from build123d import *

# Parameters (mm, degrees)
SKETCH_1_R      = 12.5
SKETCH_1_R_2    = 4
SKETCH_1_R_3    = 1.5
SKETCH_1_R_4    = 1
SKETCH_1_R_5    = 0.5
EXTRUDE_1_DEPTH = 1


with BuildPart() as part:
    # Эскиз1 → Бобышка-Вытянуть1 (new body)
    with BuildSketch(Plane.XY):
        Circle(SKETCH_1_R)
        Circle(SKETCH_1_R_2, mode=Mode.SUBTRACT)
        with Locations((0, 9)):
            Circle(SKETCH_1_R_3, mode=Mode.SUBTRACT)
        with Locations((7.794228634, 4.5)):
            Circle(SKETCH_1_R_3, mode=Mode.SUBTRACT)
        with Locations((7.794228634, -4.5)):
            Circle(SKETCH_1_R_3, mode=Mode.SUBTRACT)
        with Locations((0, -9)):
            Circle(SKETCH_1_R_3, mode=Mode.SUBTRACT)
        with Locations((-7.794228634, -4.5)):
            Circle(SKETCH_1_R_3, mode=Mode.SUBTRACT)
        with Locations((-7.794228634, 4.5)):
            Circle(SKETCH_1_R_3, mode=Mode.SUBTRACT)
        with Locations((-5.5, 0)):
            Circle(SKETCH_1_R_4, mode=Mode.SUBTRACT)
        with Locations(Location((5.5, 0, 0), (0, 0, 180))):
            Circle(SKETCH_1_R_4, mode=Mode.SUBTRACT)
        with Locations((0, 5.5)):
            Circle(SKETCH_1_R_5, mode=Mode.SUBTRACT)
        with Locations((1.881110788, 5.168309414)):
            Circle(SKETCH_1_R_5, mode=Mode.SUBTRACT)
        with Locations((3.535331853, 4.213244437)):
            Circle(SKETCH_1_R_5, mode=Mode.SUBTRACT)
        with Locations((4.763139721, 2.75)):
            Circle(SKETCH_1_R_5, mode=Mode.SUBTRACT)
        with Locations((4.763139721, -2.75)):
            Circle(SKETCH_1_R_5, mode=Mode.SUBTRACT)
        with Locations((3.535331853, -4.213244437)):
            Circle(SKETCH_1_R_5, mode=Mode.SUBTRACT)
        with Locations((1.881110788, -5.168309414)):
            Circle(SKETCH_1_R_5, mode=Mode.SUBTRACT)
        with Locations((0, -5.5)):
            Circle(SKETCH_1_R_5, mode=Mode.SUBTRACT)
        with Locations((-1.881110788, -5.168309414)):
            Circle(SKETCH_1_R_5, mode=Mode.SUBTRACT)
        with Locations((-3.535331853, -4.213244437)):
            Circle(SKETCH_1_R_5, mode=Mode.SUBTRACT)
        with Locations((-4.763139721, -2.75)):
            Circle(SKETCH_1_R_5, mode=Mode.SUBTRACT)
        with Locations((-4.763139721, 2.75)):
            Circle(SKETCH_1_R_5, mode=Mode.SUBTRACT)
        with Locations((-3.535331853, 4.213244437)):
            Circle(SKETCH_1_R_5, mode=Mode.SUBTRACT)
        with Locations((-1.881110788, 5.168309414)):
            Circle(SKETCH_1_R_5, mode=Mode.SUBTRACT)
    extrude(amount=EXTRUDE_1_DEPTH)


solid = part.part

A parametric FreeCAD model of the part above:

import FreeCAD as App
import Part
import Sketcher

V = App.Vector

doc = App.newDocument("Part")
body = doc.addObject("PartDesign::Body", "Body")

sketch1 = body.newObject("Sketcher::SketchObject", "Sketch")
sketch1.AttachmentSupport = (doc.getObject("XY_Plane"), [""])
sketch1.MapMode = "FlatFace"
sketch1.addGeometry([
    Part.Circle(V(0, 0, 0), V(0, 0, 1), 12.5),
    Part.Circle(V(-7.8, -4.5, 0), V(0, 0, 1), 1.5),
    Part.Circle(V(-4.8, -2.8, 0), V(0, 0, 1), 0.5),
    Part.Circle(V(-3.5, -4.2, 0), V(0, 0, 1), 0.5),
    Part.Circle(V(-1.9, -5.2, 0), V(0, 0, 1), 0.5),
    Part.Circle(V(0, -9, 0), V(0, 0, 1), 1.5),
    Part.Circle(V(0, -5.5, 0), V(0, 0, 1), 0.5),
    Part.Circle(V(1.9, -5.2, 0), V(0, 0, 1), 0.5),
    Part.Circle(V(3.5, -4.2, 0), V(0, 0, 1), 0.5),
    Part.Circle(V(4.8, -2.8, 0), V(0, 0, 1), 0.5),
    Part.Circle(V(7.8, -4.5, 0), V(0, 0, 1), 1.5),
    Part.Circle(V(-5.5, 0, 0), V(0, 0, 1), 1),
    Part.Circle(V(-7.8, 4.5, 0), V(0, 0, 1), 1.5),
    Part.Circle(V(-4.8, 2.8, 0), V(0, 0, 1), 0.5),
    Part.Circle(V(-3.5, 4.2, 0), V(0, 0, 1), 0.5),
    Part.Circle(V(-1.9, 5.2, 0), V(0, 0, 1), 0.5),
    Part.Circle(V(0, 0, 0), V(0, 0, 1), 4),
    Part.Circle(V(1.9, 5.2, 0), V(0, 0, 1), 0.5),
    Part.Circle(V(3.5, 4.2, 0), V(0, 0, 1), 0.5),
    Part.Circle(V(5.5, 0, 0), V(0, 0, 1), 1),
    Part.Circle(V(4.8, 2.8, 0), V(0, 0, 1), 0.5),
    Part.Circle(V(7.8, 4.5, 0), V(0, 0, 1), 1.5),
    Part.Circle(V(0, 5.5, 0), V(0, 0, 1), 0.5),
    Part.Circle(V(0, 9, 0), V(0, 0, 1), 1.5),
], False)
sketch1.addConstraint([
    Sketcher.Constraint("Coincident", 0, 3, -1, 1),
    Sketcher.Constraint("Coincident", 16, 3, -1, 1),
    Sketcher.Constraint("Equal", 2, 3),
    Sketcher.Constraint("Equal", 3, 4),
    Sketcher.Constraint("Equal", 1, 5),
    Sketcher.Constraint("Equal", 4, 6),
    Sketcher.Constraint("Equal", 6, 7),
    Sketcher.Constraint("Equal", 7, 8),
    Sketcher.Constraint("Equal", 8, 9),
    Sketcher.Constraint("Equal", 5, 10),
    Sketcher.Constraint("Equal", 10, 12),
    Sketcher.Constraint("Equal", 9, 13),
    Sketcher.Constraint("Equal", 13, 14),
    Sketcher.Constraint("Equal", 14, 15),
    Sketcher.Constraint("Equal", 15, 17),
    Sketcher.Constraint("Equal", 17, 18),
    Sketcher.Constraint("Equal", 11, 19),
    Sketcher.Constraint("Equal", 18, 20),
    Sketcher.Constraint("Equal", 12, 21),
    Sketcher.Constraint("Equal", 20, 22),
    Sketcher.Constraint("Equal", 21, 23),
    Sketcher.Constraint("Symmetric", 10, 3, 12, 3, -1, 1),
    Sketcher.Constraint("Symmetric", 9, 3, 13, 3, -1, 1),
    Sketcher.Constraint("Symmetric", 8, 3, 14, 3, -1, 1),
    Sketcher.Constraint("Symmetric", 7, 3, 15, 3, -1, 1),
    Sketcher.Constraint("Symmetric", 4, 3, 17, 3, -1, 1),
    Sketcher.Constraint("Symmetric", 3, 3, 18, 3, -1, 1),
    Sketcher.Constraint("Symmetric", 11, 3, 19, 3, -1, 1),
    Sketcher.Constraint("Symmetric", 2, 3, 20, 3, -1, 1),
    Sketcher.Constraint("Symmetric", 1, 3, 21, 3, -1, 1),
    Sketcher.Constraint("Symmetric", 6, 3, 22, 3, -1, 1),
    Sketcher.Constraint("Symmetric", 5, 3, 23, 3, -1, 1),
    Sketcher.Constraint("Symmetric", 4, 3, 7, 3, -2),
    Sketcher.Constraint("Symmetric", 3, 3, 8, 3, -2),
    Sketcher.Constraint("Symmetric", 2, 3, 9, 3, -2),
    Sketcher.Constraint("Symmetric", 1, 3, 10, 3, -2),
    Sketcher.Constraint("PointOnObject", 5, 3, -2),
    Sketcher.Constraint("PointOnObject", 6, 3, -2),
    Sketcher.Constraint("PointOnObject", 11, 3, -1),
    Sketcher.Constraint("Diameter", 0, 25.0),
    Sketcher.Constraint("Diameter", 1, 3.0),
    Sketcher.Constraint("Diameter", 2, 1.0),
    Sketcher.Constraint("Diameter", 11, 2.0),
    Sketcher.Constraint("Diameter", 16, 8.0),
    Sketcher.Constraint("DistanceY", 5, 3, -1, 1, 9.0),
    Sketcher.Constraint("DistanceY", 6, 3, 10, 3, 1.0),
    Sketcher.Constraint("DistanceY", 1, 3, 12, 3, 9.0),
    Sketcher.Constraint("DistanceX", 11, 3, -1, 1, 5.5),
    Sketcher.Constraint("DistanceY", 2, 3, 13, 3, 5.5),
    Sketcher.Constraint("DistanceX", 1, 3, -1, 1, 7.794229),
    Sketcher.Constraint("DistanceX", 2, 3, -1, 1, 4.76314),
    Sketcher.Constraint("DistanceX", 3, 3, -1, 1, 3.535332),
    Sketcher.Constraint("DistanceX", 4, 3, -1, 1, 1.881111),
    Sketcher.Constraint("DistanceY", 4, 3, -1, 1, 5.168309),
    Sketcher.Constraint("DistanceY", 3, 3, -1, 1, 4.213244),
])
pad1 = body.newObject("PartDesign::Pad", "Pad")
pad1.Profile = sketch1
pad1.Length = 1

doc.recompute()
